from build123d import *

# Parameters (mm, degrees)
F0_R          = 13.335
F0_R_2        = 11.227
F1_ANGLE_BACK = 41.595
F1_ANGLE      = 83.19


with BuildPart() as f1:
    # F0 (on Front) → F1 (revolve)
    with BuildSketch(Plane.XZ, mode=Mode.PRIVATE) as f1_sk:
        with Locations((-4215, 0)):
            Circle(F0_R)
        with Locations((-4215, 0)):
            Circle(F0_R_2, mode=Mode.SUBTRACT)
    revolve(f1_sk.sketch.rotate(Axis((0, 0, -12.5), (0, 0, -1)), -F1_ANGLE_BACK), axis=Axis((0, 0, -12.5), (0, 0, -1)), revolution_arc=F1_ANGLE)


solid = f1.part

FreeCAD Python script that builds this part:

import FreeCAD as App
import Part
import Sketcher
Q = App.Units.Quantity

doc = App.newDocument("Part")
body = doc.addObject("PartDesign::Body", "Body")

# Sketch on an angled plane
sketch1 = doc.addObject("Sketcher::SketchObject", "Sketch")
body.addObject(sketch1)
sketch1.Placement = App.Placement(App.Vector(0, 0, 0), App.Rotation(App.Vector(0.747856026, 0.663860952, 0), App.Vector(0, 0, 0.999999999), App.Vector(0.663860952, -0.747856026, 0), "ZXY"))
sketch1.addGeometry([
    Part.Circle(App.Vector(-4214.999997, 0, 0), App.Vector(0, 0, 1), 13.335),
    Part.Circle(App.Vector(-4214.999997, 0, 0), App.Vector(0, 0, 1), 11.227),
], False)
sketch1.addConstraint([
    Sketcher.Constraint("Coincident", 1, 3, 0, 3),
    Sketcher.Constraint("PointOnObject", 0, 3, -1),
    Sketcher.Constraint("Diameter", 0, Q("1.05 in")),
    Sketcher.Constraint("Diameter", 1, Q("22.454 mm")),
    Sketcher.Constraint("DistanceX", 0, 3, -1, 1, Q("4214.999997 mm")),
])
revolution = doc.addObject("PartDesign::Revolution", "Revolution")
body.addObject(revolution)
revolution.Profile = sketch1
revolution.ReferenceAxis = (sketch1, ["V_Axis"])
revolution.Angle = 83.19
revolution.Reversed = True

doc.recompute()
